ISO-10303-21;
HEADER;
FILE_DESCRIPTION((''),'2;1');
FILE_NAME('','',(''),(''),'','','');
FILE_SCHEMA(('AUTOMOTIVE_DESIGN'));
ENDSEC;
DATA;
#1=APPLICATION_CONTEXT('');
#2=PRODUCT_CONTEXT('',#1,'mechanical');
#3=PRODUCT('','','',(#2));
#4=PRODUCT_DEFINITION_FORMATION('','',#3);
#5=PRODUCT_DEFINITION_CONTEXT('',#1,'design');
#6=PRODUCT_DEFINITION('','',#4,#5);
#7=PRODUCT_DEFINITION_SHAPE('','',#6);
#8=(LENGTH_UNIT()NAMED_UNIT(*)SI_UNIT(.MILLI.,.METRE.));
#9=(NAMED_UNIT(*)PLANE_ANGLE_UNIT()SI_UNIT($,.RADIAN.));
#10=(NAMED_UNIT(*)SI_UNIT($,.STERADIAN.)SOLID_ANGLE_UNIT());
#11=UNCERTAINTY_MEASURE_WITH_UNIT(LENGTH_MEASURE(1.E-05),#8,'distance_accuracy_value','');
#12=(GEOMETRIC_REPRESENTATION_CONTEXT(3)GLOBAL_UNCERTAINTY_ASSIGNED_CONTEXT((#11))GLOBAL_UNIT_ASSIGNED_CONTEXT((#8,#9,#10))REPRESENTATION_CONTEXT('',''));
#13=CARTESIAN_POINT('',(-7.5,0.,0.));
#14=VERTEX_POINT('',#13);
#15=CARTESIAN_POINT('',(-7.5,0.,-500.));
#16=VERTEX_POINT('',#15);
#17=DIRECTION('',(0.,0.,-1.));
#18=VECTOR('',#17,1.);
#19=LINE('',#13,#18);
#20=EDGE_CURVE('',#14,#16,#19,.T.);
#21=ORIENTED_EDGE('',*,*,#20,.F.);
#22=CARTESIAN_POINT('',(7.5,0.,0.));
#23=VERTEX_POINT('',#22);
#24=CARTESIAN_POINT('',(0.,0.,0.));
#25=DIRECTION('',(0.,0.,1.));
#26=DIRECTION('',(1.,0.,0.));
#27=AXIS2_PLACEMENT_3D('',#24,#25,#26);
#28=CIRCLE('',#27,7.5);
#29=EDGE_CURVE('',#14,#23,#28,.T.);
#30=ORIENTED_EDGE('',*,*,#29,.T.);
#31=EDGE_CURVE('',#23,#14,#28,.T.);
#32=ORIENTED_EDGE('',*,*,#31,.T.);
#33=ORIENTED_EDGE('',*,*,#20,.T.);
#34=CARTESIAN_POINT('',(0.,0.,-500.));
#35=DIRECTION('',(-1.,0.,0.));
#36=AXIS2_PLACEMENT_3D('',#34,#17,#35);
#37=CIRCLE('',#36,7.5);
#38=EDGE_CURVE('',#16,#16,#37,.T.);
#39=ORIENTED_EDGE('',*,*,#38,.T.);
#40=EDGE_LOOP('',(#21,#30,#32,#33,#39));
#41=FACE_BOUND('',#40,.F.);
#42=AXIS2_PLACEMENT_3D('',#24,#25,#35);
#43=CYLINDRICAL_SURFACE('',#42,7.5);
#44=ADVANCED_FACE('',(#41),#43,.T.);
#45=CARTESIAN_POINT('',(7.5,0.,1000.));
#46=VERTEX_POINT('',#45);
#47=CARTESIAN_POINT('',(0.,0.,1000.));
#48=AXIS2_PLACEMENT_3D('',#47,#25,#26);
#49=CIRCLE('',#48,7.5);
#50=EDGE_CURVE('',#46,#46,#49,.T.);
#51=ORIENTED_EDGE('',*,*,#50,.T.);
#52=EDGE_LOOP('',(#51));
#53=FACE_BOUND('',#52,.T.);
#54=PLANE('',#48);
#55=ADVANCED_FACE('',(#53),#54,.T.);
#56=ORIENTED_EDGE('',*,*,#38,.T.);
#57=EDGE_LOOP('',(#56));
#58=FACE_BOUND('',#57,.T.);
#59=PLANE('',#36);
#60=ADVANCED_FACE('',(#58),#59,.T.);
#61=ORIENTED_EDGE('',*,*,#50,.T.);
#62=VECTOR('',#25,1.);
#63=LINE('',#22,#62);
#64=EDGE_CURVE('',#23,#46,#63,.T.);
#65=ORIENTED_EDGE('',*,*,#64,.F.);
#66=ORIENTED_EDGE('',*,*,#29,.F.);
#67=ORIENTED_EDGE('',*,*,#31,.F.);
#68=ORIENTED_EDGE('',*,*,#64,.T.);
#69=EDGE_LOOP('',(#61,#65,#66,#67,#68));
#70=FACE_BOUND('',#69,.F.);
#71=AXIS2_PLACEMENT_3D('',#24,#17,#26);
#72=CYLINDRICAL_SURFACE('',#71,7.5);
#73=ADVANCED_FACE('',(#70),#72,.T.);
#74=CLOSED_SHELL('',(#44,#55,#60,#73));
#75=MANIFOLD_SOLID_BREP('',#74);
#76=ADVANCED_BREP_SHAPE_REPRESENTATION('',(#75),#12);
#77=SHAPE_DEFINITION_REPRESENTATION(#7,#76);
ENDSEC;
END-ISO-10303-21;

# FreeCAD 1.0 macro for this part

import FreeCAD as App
import Part
import Sketcher
from FreeCAD import Vector
Q = App.Units.Quantity

doc = App.newDocument("Part")
params = doc.addObject("Spreadsheet::Sheet", "Params")
for row, (alias, value) in enumerate([
    ("sketch1_diameter", "15 mm"),
    ("pad1_length", "1000 mm"),
    ("sketch2_diameter", "15 mm"),
    ("pad2_length", "500 mm"),
], start=1):
    params.set(f"A{row}", alias)
    params.set(f"B{row}", "=" + value)
    params.setAlias(f"B{row}", alias)

body = doc.addObject("PartDesign::Body", "Body")

# Sketch on XY plane
sketch1 = body.newObject("Sketcher::SketchObject", "Sketch")
sketch1.AttachmentSupport = (doc.getObject("XY_Plane"), [""])
sketch1.MapMode = "FlatFace"
sketch1.addGeometry(Part.Circle(Vector(0, 0, 0), Vector(0, 0, 1), 8), False)
sketch1.addConstraint([
    Sketcher.Constraint("Coincident", 0, 3, -1, 1),
    Sketcher.Constraint("Diameter", 0, Q("15 mm")),
])
sketch1.setExpression("Constraints[1]", "Params.sketch1_diameter")
pad1 = body.newObject("PartDesign::Pad", "Pad")
pad1.Profile = sketch1
pad1.setExpression("Length", "Params.pad1_length")

# Sketch on XY plane
sketch2 = body.newObject("Sketcher::SketchObject", "Sketch001")
sketch2.AttachmentSupport = (doc.getObject("XY_Plane"), [""])
sketch2.MapMode = "FlatFace"
sketch2.addGeometry(Part.Circle(Vector(0, 0, 0), Vector(0, 0, 1), 8), False)
sketch2.addConstraint([
    Sketcher.Constraint("Coincident", 0, 3, -1, 1),
    Sketcher.Constraint("Diameter", 0, Q("15 mm")),
])
sketch2.setExpression("Constraints[1]", "Params.sketch2_diameter")
pad2 = body.newObject("PartDesign::Pad", "Pad001")
pad2.Profile = sketch2
pad2.setExpression("Length", "Params.pad2_length")
pad2.Reversed = True

doc.recompute()
